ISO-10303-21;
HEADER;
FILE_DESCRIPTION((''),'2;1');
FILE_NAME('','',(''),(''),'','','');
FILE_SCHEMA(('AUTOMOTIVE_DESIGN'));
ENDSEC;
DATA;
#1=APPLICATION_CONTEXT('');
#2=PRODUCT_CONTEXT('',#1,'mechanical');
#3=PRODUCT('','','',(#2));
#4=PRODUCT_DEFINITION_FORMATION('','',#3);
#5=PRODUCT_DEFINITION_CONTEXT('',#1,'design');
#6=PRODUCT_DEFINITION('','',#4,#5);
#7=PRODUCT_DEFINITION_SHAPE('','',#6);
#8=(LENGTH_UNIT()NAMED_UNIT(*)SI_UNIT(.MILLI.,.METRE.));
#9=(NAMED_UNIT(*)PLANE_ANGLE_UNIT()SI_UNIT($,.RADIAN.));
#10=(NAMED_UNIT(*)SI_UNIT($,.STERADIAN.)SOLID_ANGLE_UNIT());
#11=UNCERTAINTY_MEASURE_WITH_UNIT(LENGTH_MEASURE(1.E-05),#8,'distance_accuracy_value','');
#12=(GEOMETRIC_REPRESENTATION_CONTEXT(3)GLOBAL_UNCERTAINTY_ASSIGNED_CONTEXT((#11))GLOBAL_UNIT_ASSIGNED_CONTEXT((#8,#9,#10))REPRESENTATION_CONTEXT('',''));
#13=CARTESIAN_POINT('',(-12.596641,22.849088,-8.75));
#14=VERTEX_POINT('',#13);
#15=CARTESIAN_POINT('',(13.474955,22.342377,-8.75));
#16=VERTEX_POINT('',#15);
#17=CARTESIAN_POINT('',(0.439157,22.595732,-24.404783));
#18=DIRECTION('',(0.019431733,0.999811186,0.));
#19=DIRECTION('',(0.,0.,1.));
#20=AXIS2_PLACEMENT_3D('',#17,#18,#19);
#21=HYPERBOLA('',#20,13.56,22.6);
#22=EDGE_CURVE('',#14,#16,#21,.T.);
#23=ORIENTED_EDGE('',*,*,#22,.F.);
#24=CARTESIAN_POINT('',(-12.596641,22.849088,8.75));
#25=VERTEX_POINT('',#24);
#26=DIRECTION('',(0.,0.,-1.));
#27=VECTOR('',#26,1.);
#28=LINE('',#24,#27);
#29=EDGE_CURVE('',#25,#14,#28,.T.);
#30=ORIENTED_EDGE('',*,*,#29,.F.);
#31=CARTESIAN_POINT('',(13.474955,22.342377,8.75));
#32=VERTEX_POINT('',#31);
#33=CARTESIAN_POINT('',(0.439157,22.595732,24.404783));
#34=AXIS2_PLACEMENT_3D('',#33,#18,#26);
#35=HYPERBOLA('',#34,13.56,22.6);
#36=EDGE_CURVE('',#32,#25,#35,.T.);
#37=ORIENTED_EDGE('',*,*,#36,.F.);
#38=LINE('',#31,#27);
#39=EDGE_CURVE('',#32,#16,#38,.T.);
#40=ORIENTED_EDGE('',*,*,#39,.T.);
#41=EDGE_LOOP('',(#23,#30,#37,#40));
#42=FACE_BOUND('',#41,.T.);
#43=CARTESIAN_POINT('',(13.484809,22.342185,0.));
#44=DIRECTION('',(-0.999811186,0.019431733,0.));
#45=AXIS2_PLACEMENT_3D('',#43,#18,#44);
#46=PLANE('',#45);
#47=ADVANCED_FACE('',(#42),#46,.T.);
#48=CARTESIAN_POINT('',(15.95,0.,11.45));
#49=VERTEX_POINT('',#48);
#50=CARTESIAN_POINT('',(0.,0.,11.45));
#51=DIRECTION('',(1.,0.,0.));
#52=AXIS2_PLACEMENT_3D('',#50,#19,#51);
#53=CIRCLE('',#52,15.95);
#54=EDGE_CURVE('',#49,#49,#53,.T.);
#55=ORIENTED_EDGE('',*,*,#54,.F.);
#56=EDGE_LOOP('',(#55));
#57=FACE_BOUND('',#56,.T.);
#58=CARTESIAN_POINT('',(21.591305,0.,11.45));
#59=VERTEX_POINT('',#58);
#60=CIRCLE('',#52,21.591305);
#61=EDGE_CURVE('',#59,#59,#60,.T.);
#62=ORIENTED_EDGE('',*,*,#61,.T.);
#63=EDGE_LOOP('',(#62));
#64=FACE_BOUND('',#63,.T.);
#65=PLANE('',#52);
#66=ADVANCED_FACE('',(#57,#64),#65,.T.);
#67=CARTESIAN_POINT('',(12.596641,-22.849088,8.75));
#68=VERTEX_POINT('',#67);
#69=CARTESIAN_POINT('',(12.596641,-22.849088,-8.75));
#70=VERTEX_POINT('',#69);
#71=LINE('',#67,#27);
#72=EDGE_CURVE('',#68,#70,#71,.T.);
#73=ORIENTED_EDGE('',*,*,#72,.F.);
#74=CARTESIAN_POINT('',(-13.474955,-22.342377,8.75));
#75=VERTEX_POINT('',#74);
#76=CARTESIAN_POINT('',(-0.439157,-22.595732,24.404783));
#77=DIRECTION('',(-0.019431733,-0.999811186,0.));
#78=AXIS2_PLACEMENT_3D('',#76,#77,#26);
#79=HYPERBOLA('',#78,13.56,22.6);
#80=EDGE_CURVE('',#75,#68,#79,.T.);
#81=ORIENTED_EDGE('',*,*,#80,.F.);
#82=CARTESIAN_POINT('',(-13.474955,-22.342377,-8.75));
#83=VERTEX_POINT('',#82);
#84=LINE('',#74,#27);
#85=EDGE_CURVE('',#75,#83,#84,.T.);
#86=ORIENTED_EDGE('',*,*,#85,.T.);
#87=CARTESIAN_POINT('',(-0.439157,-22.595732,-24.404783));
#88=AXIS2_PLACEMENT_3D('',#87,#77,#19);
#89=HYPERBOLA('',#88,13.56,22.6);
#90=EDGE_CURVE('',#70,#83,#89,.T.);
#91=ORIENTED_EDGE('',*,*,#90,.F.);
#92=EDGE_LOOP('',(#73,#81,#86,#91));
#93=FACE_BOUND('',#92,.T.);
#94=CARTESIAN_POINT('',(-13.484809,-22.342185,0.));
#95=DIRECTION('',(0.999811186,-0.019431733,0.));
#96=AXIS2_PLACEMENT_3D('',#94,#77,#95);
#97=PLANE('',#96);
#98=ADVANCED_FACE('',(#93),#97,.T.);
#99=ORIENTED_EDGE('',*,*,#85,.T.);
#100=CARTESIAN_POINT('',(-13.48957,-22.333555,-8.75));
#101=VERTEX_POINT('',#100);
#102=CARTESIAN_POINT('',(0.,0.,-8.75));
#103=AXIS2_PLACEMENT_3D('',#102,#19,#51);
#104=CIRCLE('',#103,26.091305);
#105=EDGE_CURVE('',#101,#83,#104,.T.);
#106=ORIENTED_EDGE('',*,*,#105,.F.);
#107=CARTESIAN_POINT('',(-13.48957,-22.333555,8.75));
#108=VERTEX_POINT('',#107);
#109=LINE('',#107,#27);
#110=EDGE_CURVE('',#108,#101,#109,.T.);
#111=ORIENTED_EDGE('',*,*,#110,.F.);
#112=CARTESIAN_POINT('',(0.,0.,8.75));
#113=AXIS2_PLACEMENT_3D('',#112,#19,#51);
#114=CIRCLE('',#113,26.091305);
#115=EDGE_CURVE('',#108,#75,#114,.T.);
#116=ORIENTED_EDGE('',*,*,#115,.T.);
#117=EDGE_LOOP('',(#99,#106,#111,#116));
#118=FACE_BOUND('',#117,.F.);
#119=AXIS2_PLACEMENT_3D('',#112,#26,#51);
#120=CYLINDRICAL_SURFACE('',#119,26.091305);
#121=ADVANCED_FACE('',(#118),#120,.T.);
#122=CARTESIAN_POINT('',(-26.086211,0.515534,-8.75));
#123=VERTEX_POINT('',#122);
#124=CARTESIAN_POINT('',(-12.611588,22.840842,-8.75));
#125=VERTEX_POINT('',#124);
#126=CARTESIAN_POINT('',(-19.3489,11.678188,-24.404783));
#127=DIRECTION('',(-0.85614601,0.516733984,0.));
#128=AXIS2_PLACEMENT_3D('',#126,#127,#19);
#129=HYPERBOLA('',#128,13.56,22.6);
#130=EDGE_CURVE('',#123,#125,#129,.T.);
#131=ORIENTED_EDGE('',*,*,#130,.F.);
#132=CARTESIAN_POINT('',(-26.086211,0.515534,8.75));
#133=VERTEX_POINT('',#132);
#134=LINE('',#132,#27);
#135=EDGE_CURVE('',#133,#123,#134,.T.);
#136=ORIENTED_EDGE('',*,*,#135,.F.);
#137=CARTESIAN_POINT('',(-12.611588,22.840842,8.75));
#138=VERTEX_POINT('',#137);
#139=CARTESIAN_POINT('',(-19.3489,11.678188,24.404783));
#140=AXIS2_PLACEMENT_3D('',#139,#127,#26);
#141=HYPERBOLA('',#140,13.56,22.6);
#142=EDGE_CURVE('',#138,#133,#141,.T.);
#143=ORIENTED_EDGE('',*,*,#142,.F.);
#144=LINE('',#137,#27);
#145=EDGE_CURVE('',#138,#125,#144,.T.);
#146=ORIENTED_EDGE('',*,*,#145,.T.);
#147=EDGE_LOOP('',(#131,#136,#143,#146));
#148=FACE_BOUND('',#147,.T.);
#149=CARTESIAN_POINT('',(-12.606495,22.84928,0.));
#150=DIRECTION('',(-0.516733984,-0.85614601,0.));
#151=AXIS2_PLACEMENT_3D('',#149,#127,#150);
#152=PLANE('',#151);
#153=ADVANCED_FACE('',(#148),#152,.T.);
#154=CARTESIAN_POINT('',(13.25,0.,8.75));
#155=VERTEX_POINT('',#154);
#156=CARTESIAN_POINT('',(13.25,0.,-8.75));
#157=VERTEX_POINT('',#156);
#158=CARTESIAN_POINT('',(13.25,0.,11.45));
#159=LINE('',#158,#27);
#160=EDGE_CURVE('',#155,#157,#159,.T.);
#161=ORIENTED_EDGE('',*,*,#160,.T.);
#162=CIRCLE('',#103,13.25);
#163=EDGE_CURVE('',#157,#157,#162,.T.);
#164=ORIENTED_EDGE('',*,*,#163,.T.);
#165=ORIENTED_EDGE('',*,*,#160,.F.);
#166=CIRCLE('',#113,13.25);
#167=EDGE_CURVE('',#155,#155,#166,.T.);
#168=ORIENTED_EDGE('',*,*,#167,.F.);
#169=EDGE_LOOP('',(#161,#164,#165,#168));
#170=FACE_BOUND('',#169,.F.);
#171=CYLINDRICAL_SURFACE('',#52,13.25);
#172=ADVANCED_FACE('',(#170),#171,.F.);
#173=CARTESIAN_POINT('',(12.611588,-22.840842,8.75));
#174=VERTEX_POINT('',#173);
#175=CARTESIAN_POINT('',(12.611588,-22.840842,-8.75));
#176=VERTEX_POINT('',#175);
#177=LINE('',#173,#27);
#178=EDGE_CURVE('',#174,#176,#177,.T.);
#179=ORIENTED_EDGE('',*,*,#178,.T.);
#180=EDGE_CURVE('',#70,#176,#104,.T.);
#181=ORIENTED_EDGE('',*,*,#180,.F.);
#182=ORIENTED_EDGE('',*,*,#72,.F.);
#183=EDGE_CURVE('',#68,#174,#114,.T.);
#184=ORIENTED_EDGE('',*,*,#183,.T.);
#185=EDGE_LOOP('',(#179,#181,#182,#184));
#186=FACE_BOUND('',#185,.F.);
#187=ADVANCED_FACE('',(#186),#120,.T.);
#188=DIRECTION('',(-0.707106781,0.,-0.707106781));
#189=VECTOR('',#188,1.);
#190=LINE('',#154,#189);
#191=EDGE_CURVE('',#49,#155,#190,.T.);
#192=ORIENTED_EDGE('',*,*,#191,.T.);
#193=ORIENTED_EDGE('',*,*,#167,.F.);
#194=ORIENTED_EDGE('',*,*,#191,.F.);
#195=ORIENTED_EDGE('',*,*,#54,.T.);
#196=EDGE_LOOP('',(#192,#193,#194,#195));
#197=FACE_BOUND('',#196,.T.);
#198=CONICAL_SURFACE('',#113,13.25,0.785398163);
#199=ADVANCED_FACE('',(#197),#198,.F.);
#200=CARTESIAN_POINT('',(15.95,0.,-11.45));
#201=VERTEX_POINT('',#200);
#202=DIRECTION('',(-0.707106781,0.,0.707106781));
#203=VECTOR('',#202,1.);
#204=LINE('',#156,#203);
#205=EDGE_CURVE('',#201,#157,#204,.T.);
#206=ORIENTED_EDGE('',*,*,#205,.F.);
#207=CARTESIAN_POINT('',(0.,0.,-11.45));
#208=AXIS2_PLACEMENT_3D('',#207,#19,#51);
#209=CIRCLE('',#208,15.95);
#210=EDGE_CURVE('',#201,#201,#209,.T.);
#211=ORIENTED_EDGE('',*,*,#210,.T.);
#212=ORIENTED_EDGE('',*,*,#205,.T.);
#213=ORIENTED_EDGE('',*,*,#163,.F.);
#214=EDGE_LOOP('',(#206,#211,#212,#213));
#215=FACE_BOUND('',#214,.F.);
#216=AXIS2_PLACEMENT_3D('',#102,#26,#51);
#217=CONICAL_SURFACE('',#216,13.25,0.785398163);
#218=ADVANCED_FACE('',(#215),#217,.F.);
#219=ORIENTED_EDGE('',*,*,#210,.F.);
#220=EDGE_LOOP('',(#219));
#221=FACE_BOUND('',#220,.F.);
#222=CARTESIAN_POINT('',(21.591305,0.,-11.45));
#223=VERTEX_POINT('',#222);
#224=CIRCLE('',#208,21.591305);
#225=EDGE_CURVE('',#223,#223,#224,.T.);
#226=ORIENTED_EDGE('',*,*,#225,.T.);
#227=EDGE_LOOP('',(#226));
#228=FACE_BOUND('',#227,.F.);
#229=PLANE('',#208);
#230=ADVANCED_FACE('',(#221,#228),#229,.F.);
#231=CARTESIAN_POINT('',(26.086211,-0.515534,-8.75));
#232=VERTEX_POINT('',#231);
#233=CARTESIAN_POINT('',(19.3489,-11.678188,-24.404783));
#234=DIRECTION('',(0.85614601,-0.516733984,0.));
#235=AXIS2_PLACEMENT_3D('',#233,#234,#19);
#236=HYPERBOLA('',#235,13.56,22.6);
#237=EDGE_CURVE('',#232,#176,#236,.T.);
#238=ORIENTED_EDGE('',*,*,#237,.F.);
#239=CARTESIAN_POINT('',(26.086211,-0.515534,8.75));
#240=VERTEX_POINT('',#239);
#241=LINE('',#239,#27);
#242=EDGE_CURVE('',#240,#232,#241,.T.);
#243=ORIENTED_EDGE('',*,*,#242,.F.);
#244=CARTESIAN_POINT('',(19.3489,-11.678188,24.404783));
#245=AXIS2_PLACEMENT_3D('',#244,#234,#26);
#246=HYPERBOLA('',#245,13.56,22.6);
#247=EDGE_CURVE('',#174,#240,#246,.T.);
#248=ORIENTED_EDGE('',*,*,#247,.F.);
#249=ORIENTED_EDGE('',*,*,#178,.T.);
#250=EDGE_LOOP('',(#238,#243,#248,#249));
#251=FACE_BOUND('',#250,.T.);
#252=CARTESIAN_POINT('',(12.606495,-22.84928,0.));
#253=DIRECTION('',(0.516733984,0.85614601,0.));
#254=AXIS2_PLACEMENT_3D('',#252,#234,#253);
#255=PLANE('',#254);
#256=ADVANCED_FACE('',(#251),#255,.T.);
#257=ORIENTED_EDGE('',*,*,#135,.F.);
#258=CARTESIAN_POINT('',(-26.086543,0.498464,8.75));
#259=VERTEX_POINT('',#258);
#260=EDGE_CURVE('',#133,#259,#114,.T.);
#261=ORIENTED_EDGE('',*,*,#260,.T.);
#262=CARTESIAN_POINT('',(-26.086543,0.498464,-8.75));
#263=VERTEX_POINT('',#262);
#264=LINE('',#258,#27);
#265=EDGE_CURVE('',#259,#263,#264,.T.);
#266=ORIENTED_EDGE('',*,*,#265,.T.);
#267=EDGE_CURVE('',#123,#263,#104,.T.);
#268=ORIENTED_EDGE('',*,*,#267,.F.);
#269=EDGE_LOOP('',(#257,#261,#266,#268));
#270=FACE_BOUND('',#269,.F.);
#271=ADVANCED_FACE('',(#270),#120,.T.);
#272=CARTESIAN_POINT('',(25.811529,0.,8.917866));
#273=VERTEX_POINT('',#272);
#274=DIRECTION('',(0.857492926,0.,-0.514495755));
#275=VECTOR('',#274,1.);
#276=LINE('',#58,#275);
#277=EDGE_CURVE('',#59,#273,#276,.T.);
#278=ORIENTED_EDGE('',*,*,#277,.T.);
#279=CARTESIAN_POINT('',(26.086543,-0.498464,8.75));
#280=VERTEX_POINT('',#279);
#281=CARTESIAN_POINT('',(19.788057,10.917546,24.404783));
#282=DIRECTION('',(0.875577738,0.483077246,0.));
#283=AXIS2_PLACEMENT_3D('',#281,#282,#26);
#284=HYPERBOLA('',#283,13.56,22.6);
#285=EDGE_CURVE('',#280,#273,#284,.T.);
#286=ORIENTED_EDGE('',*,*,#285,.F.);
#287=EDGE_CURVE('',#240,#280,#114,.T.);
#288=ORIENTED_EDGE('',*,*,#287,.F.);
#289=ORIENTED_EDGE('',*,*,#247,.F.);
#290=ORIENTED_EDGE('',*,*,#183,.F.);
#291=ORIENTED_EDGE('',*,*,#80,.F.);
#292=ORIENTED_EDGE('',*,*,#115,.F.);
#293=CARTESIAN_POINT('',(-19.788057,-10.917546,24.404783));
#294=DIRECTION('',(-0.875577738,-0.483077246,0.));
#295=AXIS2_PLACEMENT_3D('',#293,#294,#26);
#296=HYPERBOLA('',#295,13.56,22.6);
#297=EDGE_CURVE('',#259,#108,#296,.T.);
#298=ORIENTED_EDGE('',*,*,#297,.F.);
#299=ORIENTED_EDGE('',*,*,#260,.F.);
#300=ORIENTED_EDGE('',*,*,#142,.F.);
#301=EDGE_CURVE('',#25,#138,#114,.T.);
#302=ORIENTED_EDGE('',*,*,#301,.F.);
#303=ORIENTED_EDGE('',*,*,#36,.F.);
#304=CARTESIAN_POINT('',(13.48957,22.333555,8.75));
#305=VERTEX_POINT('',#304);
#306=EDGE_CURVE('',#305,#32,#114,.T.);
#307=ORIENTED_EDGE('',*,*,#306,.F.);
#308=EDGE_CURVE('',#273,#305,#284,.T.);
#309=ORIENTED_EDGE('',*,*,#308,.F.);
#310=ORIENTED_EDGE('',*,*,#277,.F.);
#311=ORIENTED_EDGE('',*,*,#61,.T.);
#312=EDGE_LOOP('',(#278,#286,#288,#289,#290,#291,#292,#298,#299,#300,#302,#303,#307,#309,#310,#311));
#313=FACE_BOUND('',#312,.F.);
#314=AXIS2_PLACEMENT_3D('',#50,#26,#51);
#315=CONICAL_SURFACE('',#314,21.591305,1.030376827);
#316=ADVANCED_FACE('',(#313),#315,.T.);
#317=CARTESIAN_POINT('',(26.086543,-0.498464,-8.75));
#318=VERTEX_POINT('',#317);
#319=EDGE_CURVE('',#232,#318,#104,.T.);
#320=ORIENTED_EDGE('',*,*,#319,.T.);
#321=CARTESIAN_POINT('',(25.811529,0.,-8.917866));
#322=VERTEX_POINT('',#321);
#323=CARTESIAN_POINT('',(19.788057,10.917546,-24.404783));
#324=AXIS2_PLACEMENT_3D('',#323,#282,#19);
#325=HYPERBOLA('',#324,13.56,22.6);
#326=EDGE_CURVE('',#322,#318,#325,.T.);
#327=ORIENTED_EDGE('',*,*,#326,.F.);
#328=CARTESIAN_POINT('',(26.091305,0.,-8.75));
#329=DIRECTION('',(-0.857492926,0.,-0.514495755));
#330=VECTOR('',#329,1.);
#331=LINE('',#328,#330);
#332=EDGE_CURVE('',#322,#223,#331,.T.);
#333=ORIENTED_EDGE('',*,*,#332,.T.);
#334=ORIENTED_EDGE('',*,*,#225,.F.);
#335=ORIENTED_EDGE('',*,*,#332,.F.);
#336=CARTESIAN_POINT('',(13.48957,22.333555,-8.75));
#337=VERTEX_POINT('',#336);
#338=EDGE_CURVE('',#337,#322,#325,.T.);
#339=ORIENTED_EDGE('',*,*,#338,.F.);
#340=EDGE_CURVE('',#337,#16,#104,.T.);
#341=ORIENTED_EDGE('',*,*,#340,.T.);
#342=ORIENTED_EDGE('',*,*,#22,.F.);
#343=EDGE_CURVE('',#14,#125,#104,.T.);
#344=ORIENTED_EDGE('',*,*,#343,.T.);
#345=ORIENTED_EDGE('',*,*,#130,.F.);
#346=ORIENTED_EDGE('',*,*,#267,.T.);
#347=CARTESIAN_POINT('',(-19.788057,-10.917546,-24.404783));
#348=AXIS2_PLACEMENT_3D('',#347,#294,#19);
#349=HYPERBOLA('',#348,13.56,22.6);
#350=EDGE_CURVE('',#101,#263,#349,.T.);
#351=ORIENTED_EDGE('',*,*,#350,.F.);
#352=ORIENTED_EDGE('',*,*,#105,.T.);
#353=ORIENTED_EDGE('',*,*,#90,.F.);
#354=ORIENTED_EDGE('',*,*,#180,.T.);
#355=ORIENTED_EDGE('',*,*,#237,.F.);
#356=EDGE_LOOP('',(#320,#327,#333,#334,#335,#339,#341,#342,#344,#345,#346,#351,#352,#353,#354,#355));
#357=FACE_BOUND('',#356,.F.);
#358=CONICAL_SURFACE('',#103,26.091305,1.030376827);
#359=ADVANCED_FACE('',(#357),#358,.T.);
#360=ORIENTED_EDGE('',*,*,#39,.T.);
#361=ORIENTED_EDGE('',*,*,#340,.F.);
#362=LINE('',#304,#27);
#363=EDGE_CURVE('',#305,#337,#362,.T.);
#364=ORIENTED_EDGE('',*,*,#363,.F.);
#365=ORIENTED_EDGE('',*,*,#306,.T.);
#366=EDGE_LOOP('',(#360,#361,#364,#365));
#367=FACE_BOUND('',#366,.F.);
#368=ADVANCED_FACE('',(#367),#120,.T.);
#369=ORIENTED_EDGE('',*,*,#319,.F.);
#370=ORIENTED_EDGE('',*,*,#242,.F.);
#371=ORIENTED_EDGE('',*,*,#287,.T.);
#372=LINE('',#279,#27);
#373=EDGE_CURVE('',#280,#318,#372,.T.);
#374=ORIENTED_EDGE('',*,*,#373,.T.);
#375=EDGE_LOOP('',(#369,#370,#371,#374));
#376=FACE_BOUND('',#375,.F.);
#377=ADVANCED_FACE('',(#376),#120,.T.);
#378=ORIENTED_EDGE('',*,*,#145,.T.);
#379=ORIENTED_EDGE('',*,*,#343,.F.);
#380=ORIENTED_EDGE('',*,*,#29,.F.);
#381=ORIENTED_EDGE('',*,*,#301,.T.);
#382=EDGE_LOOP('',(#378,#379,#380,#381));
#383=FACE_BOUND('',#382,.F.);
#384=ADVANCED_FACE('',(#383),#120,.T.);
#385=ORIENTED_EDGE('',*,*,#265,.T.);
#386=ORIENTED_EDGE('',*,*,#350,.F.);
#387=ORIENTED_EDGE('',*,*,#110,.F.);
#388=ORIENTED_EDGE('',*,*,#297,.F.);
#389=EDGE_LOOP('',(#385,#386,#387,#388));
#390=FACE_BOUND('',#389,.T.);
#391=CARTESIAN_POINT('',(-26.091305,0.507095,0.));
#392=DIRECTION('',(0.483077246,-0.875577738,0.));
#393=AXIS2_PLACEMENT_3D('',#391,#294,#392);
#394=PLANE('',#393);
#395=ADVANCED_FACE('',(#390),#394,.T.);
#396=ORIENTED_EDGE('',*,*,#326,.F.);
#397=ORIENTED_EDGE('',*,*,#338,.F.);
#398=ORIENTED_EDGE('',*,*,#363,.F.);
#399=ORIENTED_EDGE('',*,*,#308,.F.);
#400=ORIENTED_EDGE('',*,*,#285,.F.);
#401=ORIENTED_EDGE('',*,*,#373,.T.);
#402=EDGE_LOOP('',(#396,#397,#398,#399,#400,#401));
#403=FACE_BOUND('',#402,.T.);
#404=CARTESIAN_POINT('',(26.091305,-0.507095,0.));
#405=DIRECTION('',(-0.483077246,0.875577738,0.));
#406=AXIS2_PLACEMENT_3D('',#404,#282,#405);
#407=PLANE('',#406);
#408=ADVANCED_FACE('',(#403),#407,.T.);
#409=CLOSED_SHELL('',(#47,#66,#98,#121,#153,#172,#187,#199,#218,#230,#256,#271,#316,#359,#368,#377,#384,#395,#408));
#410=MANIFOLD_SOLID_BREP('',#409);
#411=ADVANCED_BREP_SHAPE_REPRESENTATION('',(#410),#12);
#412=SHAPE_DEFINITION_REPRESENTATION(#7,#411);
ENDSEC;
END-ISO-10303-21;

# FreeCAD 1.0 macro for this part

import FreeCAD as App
import Part
import Sketcher

V = App.Vector
Q = App.Units.Quantity


def edges_at(feature, points):
    """Names of the edges that pass closest to the given points."""
    edges = feature.Shape.Edges
    near = lambda p: min(range(len(edges)), key=lambda i: edges[i].distToShape(Part.Vertex(*p))[0])
    return sorted({f"Edge{near(p) + 1}" for p in points})


def add_polygon(sketch, points):
    """Adds a closed chain of lines whose ends are joined by coincident constraints."""
    first, n = sketch.GeometryCount, len(points)
    for a, b in zip(points, points[1:] + points[:1]):
        sketch.addGeometry(Part.LineSegment(App.Vector(*a, 0), App.Vector(*b, 0)), False)
    for i in range(n):
        sketch.addConstraint(Sketcher.Constraint("Coincident", first + i, 2, first + (i + 1) % n, 1))

doc = App.newDocument("Part")
body = doc.addObject("PartDesign::Body", "Body")

sketch1 = body.newObject("Sketcher::SketchObject", "Sketch")
sketch1.AttachmentSupport = (doc.getObject("XY_Plane"), [""])
sketch1.MapMode = "FlatFace"
add_polygon(sketch1, [(13, -23), (26, -1), (13, 22), (-13, 23), (-26, 1), (-13, -22)])
sketch1.addConstraint([
    Sketcher.Constraint("Symmetric", 0, 2, 3, 2, -1, 1),
    Sketcher.Constraint("Symmetric", 1, 2, 4, 2, -1, 1),
    Sketcher.Constraint("Symmetric", 2, 2, 5, 2, -1, 1),
    Sketcher.Constraint("Equal", 0, 1),
    Sketcher.Constraint("Equal", 1, 2),
    Sketcher.Constraint("DistanceX", 2, 2, 0, 2, Q("38.6978 mm")),
    Sketcher.Constraint("Distance", 2, Q("26.096231 mm")),
    Sketcher.Constraint("DistanceX", -1, 1, 1, 2, Q("13.484809 mm")),
    Sketcher.Constraint("DistanceY", -1, 1, 2, 2, Q("22.84928 mm")),
])
pad1 = body.newObject("PartDesign::Pad", "Pad")
pad1.Profile = sketch1
pad1.Length = 22.9
pad1.Midplane = True

sketch2 = body.newObject("Sketcher::SketchObject", "Sketch001")
sketch2.AttachmentSupport = (doc.getObject("XY_Plane"), [""])
sketch2.MapMode = "FlatFace"
sketch2.AttachmentOffset = App.Placement(V(0, 0, 11.45), App.Rotation())
sketch2.addGeometry(Part.Circle(V(0, 0, 0), V(0, 0, 1), 13), False)
sketch2.addConstraint([
    Sketcher.Constraint("Coincident", 0, 3, -1, 1),
    Sketcher.Constraint("Diameter", 0, Q("26.5 mm")),
])
pocket1 = body.newObject("PartDesign::Pocket", "Pocket")
pocket1.Profile = sketch2
pocket1.Type = "ThroughAll"

sketch3 = body.newObject("Sketcher::SketchObject", "Sketch002")
sketch3.AttachmentSupport = (doc.getObject("XZ_Plane"), [""])
sketch3.MapMode = "FlatFace"
add_polygon(sketch3, [(34, 11), (22, 11), (26, 9), (26, -9), (22, -11), (34, -11)])
sketch3.addConstraint([
    Sketcher.Constraint("Horizontal", 0),
    Sketcher.Constraint("Vertical", 2),
    Sketcher.Constraint("Horizontal", 4),
    Sketcher.Constraint("Vertical", 5),
    Sketcher.Constraint("Symmetric", 0, 2, 3, 2, -1),
    Sketcher.Constraint("Equal", 1, 3),
    Sketcher.Constraint("DistanceY", 2, 2, 2, 1, Q("17.5 mm")),
    Sketcher.Constraint("DistanceY", 5, 1, 5, 2, Q("22.9 mm")),
    Sketcher.Constraint("DistanceX", 0, 2, 1, 2, Q("4.5 mm")),
    Sketcher.Constraint("DistanceX", 0, 2, 0, 1, Q("12.70254 mm")),
    Sketcher.Constraint("DistanceX", -1, 1, 0, 2, Q("21.591305 mm")),
])
groove = body.newObject("PartDesign::Groove", "Groove")
groove.Profile = sketch3
groove.ReferenceAxis = (sketch3, ["V_Axis"])
groove.Angle = 360
doc.recompute()

chamfer = body.newObject("PartDesign::Chamfer", "Chamfer")
chamfer.Base = (groove, edges_at(groove, [(-13.25, 0, 11.45), (-13.25, 0, -11.45)]))
chamfer.Size = 2.7

doc.recompute()
